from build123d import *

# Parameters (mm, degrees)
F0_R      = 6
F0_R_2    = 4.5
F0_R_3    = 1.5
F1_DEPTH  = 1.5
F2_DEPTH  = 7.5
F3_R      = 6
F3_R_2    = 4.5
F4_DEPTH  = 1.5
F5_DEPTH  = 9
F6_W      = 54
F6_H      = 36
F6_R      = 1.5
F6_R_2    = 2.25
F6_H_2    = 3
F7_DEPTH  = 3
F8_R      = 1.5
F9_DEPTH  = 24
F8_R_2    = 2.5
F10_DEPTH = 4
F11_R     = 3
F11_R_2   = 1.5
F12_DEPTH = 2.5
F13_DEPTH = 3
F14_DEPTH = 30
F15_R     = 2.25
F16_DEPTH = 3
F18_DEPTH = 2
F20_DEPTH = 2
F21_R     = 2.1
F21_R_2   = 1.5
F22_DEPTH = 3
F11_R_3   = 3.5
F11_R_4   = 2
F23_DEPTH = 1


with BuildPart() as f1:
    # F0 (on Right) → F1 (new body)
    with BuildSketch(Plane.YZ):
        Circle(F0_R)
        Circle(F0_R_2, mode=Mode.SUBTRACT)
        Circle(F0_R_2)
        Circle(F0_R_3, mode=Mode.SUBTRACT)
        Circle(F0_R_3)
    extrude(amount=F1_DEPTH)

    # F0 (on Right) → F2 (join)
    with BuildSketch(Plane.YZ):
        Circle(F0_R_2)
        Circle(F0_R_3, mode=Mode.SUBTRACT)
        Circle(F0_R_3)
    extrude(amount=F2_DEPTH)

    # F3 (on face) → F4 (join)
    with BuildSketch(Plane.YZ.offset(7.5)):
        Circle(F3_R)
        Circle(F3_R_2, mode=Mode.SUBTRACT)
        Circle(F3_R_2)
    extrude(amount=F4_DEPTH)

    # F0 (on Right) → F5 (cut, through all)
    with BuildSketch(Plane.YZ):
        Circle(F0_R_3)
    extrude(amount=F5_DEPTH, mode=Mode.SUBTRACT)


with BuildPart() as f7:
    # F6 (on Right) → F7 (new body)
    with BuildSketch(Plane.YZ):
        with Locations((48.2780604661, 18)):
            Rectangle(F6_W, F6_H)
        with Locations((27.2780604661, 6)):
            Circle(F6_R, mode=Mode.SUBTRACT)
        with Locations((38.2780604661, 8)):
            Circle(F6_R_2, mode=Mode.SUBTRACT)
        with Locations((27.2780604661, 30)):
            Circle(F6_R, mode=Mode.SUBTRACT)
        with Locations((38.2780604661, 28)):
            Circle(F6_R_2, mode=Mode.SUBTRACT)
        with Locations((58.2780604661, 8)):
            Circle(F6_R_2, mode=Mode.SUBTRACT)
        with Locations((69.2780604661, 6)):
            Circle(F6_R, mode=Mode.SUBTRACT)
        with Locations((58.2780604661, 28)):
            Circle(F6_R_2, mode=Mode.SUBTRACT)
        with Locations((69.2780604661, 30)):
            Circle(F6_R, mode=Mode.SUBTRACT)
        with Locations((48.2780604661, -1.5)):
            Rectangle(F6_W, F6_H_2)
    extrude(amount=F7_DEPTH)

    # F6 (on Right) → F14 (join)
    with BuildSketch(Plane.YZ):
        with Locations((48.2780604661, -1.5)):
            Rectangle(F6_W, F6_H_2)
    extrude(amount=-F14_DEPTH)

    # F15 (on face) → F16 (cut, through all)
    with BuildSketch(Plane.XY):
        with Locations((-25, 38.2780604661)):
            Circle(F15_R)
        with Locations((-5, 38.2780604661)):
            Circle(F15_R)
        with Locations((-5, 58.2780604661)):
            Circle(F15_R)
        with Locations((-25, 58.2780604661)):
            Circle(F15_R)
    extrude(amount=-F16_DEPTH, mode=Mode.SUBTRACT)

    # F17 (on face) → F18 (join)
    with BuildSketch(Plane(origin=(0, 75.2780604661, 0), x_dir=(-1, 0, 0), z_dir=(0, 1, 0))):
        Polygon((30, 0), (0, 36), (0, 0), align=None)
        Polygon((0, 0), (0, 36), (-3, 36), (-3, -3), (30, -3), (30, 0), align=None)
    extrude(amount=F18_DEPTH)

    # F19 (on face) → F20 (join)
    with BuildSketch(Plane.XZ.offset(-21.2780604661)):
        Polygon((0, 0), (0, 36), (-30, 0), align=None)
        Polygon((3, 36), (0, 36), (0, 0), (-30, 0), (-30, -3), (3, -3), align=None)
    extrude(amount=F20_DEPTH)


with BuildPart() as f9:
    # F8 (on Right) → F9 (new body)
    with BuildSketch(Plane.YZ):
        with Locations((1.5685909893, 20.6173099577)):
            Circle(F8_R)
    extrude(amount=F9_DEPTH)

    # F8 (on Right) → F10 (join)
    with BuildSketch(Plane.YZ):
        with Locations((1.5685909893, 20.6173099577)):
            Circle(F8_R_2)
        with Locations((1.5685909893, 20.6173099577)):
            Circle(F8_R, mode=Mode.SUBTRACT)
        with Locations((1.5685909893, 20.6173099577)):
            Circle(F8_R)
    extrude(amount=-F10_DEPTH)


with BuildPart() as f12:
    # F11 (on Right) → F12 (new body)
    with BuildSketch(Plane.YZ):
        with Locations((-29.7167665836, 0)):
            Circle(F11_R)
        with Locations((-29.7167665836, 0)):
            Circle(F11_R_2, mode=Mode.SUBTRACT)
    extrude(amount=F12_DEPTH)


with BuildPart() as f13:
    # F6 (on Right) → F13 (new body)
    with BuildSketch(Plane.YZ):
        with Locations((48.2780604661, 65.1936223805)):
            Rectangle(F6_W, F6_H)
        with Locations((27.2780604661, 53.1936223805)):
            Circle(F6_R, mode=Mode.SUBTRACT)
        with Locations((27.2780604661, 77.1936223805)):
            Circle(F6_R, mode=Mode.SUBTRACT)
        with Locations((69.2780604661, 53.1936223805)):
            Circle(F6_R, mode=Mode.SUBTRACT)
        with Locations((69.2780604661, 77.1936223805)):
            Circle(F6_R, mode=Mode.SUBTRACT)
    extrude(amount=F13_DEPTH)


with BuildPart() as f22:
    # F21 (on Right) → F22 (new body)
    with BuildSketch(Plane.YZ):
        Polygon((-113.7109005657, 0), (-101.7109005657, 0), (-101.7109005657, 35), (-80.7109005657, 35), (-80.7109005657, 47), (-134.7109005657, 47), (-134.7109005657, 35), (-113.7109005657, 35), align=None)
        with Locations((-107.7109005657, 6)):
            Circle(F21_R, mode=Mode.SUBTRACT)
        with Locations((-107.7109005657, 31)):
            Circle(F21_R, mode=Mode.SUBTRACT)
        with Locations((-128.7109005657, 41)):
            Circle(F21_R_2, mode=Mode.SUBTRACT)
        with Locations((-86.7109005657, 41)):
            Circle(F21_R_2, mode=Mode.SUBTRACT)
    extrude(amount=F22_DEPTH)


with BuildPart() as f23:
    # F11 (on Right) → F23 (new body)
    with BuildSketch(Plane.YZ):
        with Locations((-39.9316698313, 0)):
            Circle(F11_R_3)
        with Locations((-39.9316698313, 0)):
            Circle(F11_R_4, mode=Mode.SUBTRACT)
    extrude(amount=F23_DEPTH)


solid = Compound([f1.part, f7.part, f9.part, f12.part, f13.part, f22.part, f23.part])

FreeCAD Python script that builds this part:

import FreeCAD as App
import Part
import Sketcher

doc = App.newDocument("Part")
body = doc.addObject("PartDesign::Body", "Body")

sketch1 = doc.addObject("Sketcher::SketchObject", "Sketch")
body.addObject(sketch1)
sketch1.AttachmentSupport = (doc.YZ_Plane, [""])
sketch1.MapMode = "FlatFace"
sketch1.addGeometry(Part.Circle(App.Vector(0, 0, 0), App.Vector(0, 0, 1), 6), False)
sketch1.addConstraint([
    Sketcher.Constraint("Coincident", 0, 3, -1, 1),
    Sketcher.Constraint("Diameter", 0, 12.0),
])
pad1 = doc.addObject("PartDesign::Pad", "Pad")
body.addObject(pad1)
pad1.Profile = sketch1
pad1.Length = 1.5

sketch2 = doc.addObject("Sketcher::SketchObject", "Sketch001")
body.addObject(sketch2)
sketch2.AttachmentSupport = (doc.YZ_Plane, [""])
sketch2.MapMode = "FlatFace"
sketch2.addGeometry(Part.Circle(App.Vector(0, 0, 0), App.Vector(0, 0, 1), 4.5), False)
sketch2.addConstraint([
    Sketcher.Constraint("Coincident", 0, 3, -1, 1),
    Sketcher.Constraint("Diameter", 0, 9.0),
])
pad2 = doc.addObject("PartDesign::Pad", "Pad001")
body.addObject(pad2)
pad2.Profile = sketch2
pad2.Length = 7.5

sketch3 = doc.addObject("Sketcher::SketchObject", "Sketch002")
body.addObject(sketch3)
sketch3.AttachmentSupport = (doc.YZ_Plane, [""])
sketch3.MapMode = "FlatFace"
sketch3.AttachmentOffset = App.Placement(App.Vector(0, 0, 7.5), App.Rotation())
sketch3.addGeometry(Part.Circle(App.Vector(0, 0, 0), App.Vector(0, 0, 1), 6), False)
sketch3.addConstraint([
    Sketcher.Constraint("Coincident", 0, 3, -1, 1),
    Sketcher.Constraint("Diameter", 0, 12.0),
])
pad3 = doc.addObject("PartDesign::Pad", "Pad002")
body.addObject(pad3)
pad3.Profile = sketch3
pad3.Length = 1.5

sketch4 = doc.addObject("Sketcher::SketchObject", "Sketch003")
body.addObject(sketch4)
sketch4.AttachmentSupport = (doc.YZ_Plane, [""])
sketch4.MapMode = "FlatFace"
sketch4.addGeometry(Part.Circle(App.Vector(0, 0, 0), App.Vector(0, 0, 1), 1.5), False)
sketch4.addConstraint([
    Sketcher.Constraint("Coincident", 0, 3, -1, 1),
    Sketcher.Constraint("Diameter", 0, 3.0),
])
pocket1 = doc.addObject("PartDesign::Pocket", "Pocket")
body.addObject(pocket1)
pocket1.Profile = sketch4
pocket1.Type = "ThroughAll"
pocket1.Reversed = True
body2 = doc.addObject("PartDesign::Body", "Body001")

sketch5 = doc.addObject("Sketcher::SketchObject", "Sketch004")
body2.addObject(sketch5)
sketch5.AttachmentSupport = (doc.getObject("YZ_Plane001"), [""])
sketch5.MapMode = "FlatFace"
sketch5.addGeometry([
    Part.LineSegment(App.Vector(21.27806, 36, 0), App.Vector(21.27806, -3, 0)),
    Part.LineSegment(App.Vector(21.27806, -3, 0), App.Vector(75.27806, -3, 0)),
    Part.LineSegment(App.Vector(75.27806, -3, 0), App.Vector(75.27806, 36, 0)),
    Part.LineSegment(App.Vector(75.27806, 36, 0), App.Vector(21.27806, 36, 0)),
    Part.Circle(App.Vector(27.27806, 6, 0), App.Vector(0, 0, 1), 1.5),
    Part.Circle(App.Vector(38.27806, 8, 0), App.Vector(0, 0, 1), 2.25),
    Part.Circle(App.Vector(58.27806, 8, 0), App.Vector(0, 0, 1), 2.25),
    Part.Circle(App.Vector(69.27806, 6, 0), App.Vector(0, 0, 1), 1.5),
    Part.Circle(App.Vector(27.27806, 30, 0), App.Vector(0, 0, 1), 1.5),
    Part.Circle(App.Vector(38.27806, 28, 0), App.Vector(0, 0, 1), 2.25),
    Part.Circle(App.Vector(58.27806, 28, 0), App.Vector(0, 0, 1), 2.25),
    Part.Circle(App.Vector(69.27806, 30, 0), App.Vector(0, 0, 1), 1.5),
], False)
sketch5.addConstraint([
    Sketcher.Constraint("Coincident", 0, 2, 1, 1),
    Sketcher.Constraint("Coincident", 1, 2, 2, 1),
    Sketcher.Constraint("Coincident", 2, 2, 3, 1),
    Sketcher.Constraint("Coincident", 3, 2, 0, 1),
    Sketcher.Constraint("Vertical", 0),
    Sketcher.Constraint("Horizontal", 1),
    Sketcher.Constraint("Vertical", 2),
    Sketcher.Constraint("Horizontal", 3),
    Sketcher.Constraint("Equal", 5, 6),
    Sketcher.Constraint("Equal", 4, 7),
    Sketcher.Constraint("Equal", 7, 8),
    Sketcher.Constraint("Equal", 6, 9),
    Sketcher.Constraint("Equal", 9, 10),
    Sketcher.Constraint("Equal", 8, 11),
    Sketcher.Constraint("Horizontal", 5, 3, 6, 3),
    Sketcher.Constraint("Horizontal", 4, 3, 7, 3),
    Sketcher.Constraint("Horizontal", 9, 3, 10, 3),
    Sketcher.Constraint("Horizontal", 8, 3, 11, 3),
    Sketcher.Constraint("Vertical", 4, 3, 8, 3),
    Sketcher.Constraint("Vertical", 5, 3, 9, 3),
    Sketcher.Constraint("Vertical", 6, 3, 10, 3),
    Sketcher.Constraint("Vertical", 7, 3, 11, 3),
    Sketcher.Constraint("Diameter", 4, 3.0),
    Sketcher.Constraint("Diameter", 5, 4.5),
    Sketcher.Constraint("DistanceX", 1, 1, 1, 2, 54.0),
    Sketcher.Constraint("DistanceY", 0, 2, 0, 1, 39.0),
    Sketcher.Constraint("DistanceY", -1, 1, 4, 3, 6.0),
    Sketcher.Constraint("DistanceY", -1, 1, 5, 3, 8.0),
    Sketcher.Constraint("DistanceY", -1, 1, 8, 3, 30.0),
    Sketcher.Constraint("DistanceY", -1, 1, 9, 3, 28.0),
    Sketcher.Constraint("DistanceY", 0, 2, -1, 1, 3.0),
    Sketcher.Constraint("DistanceX", 4, 3, 5, 3, 11.0),
    Sketcher.Constraint("DistanceX", 5, 3, 6, 3, 20.0),
    Sketcher.Constraint("DistanceX", 6, 3, 7, 3, 11.0),
    Sketcher.Constraint("DistanceX", 0, 2, 4, 3, 6.0),
    Sketcher.Constraint("DistanceX", -1, 1, 4, 3, 27.27806),
])
pad4 = doc.addObject("PartDesign::Pad", "Pad003")
body2.addObject(pad4)
pad4.Profile = sketch5
pad4.Length = 3

sketch6 = doc.addObject("Sketcher::SketchObject", "Sketch005")
body2.addObject(sketch6)
sketch6.AttachmentSupport = (doc.getObject("YZ_Plane001"), [""])
sketch6.MapMode = "FlatFace"
sketch6.addGeometry([
    Part.LineSegment(App.Vector(21.27806, 0, 0), App.Vector(21.27806, -3, 0)),
    Part.LineSegment(App.Vector(21.27806, -3, 0), App.Vector(75.27806, -3, 0)),
    Part.LineSegment(App.Vector(75.27806, -3, 0), App.Vector(75.27806, 0, 0)),
    Part.LineSegment(App.Vector(75.27806, 0, 0), App.Vector(21.27806, 0, 0)),
], False)
sketch6.addConstraint([
    Sketcher.Constraint("Coincident", 0, 2, 1, 1),
    Sketcher.Constraint("Coincident", 1, 2, 2, 1),
    Sketcher.Constraint("Coincident", 2, 2, 3, 1),
    Sketcher.Constraint("Coincident", 3, 2, 0, 1),
    Sketcher.Constraint("Vertical", 0),
    Sketcher.Constraint("Horizontal", 1),
    Sketcher.Constraint("Vertical", 2),
    Sketcher.Constraint("Horizontal", 3),
    Sketcher.Constraint("PointOnObject", 2, 2, -1),
    Sketcher.Constraint("DistanceX", 1, 1, 1, 2, 54.0),
    Sketcher.Constraint("DistanceY", 0, 2, 0, 1, 3.0),
    Sketcher.Constraint("DistanceX", -1, 1, 0, 2, 21.27806),
])
pad5 = doc.addObject("PartDesign::Pad", "Pad004")
body2.addObject(pad5)
pad5.Profile = sketch6
pad5.Length = 30
pad5.Reversed = True

sketch7 = doc.addObject("Sketcher::SketchObject", "Sketch006")
body2.addObject(sketch7)
sketch7.AttachmentSupport = (doc.getObject("XY_Plane001"), [""])
sketch7.MapMode = "FlatFace"
sketch7.addGeometry([
    Part.Circle(App.Vector(-25, 38.27806, 0), App.Vector(0, 0, 1), 2.25),
    Part.Circle(App.Vector(-5, 38.27806, 0), App.Vector(0, 0, 1), 2.25),
    Part.Circle(App.Vector(-5, 58.27806, 0), App.Vector(0, 0, 1), 2.25),
    Part.Circle(App.Vector(-25, 58.27806, 0), App.Vector(0, 0, 1), 2.25),
], False)
sketch7.addConstraint([
    Sketcher.Constraint("Equal", 0, 1),
    Sketcher.Constraint("Equal", 1, 2),
    Sketcher.Constraint("Equal", 2, 3),
    Sketcher.Constraint("Horizontal", 0, 3, 1, 3),
    Sketcher.Constraint("Horizontal", 2, 3, 3, 3),
    Sketcher.Constraint("Vertical", 1, 3, 2, 3),
    Sketcher.Constraint("Vertical", 0, 3, 3, 3),
    Sketcher.Constraint("Diameter", 0, 4.5),
    Sketcher.Constraint("DistanceX", 0, 3, -1, 1, 25.0),
    Sketcher.Constraint("DistanceX", 1, 3, -1, 1, 5.0),
    Sketcher.Constraint("DistanceY", 1, 3, 2, 3, 20.0),
    Sketcher.Constraint("DistanceY", -1, 1, 0, 3, 38.27806),
])
pocket2 = doc.addObject("PartDesign::Pocket", "Pocket001")
body2.addObject(pocket2)
pocket2.Profile = sketch7
pocket2.Type = "ThroughAll"

sketch8 = doc.addObject("Sketcher::SketchObject", "Sketch007")
body2.addObject(sketch8)
sketch8.AttachmentSupport = (doc.getObject("XZ_Plane001"), [""])
sketch8.MapMode = "FlatFace"
sketch8.AttachmentOffset = App.Placement(App.Vector(0, 0, -75.27806), App.Rotation())
sketch8.addGeometry([
    Part.LineSegment(App.Vector(-30, 0, 0), App.Vector(0, 36, 0)),
    Part.LineSegment(App.Vector(0, 36, 0), App.Vector(3, 36, 0)),
    Part.LineSegment(App.Vector(3, 36, 0), App.Vector(3, -3, 0)),
    Part.LineSegment(App.Vector(3, -3, 0), App.Vector(-30, -3, 0)),
    Part.LineSegment(App.Vector(-30, -3, 0), App.Vector(-30, 0, 0)),
], False)
sketch8.addConstraint([
    Sketcher.Constraint("Coincident", 0, 2, 1, 1),
    Sketcher.Constraint("Coincident", 1, 2, 2, 1),
    Sketcher.Constraint("Coincident", 2, 2, 3, 1),
    Sketcher.Constraint("Coincident", 3, 2, 4, 1),
    Sketcher.Constraint("Coincident", 4, 2, 0, 1),
    Sketcher.Constraint("Horizontal", 1),
    Sketcher.Constraint("Vertical", 2),
    Sketcher.Constraint("Horizontal", 3),
    Sketcher.Constraint("Vertical", 4),
    Sketcher.Constraint("PointOnObject", 0, 2, -2),
    Sketcher.Constraint("PointOnObject", 4, 2, -1),
    Sketcher.Constraint("Equal", 1, 4),
    Sketcher.Constraint("DistanceX", 1, 1, 1, 2, 3.0),
    Sketcher.Constraint("DistanceX", 3, 2, 3, 1, 33.0),
    Sketcher.Constraint("DistanceY", 2, 2, 2, 1, 39.0),
])
pad6 = doc.addObject("PartDesign::Pad", "Pad005")
body2.addObject(pad6)
pad6.Profile = sketch8
pad6.Length = 2
pad6.Reversed = True

sketch9 = doc.addObject("Sketcher::SketchObject", "Sketch008")
body2.addObject(sketch9)
sketch9.AttachmentSupport = (doc.getObject("XZ_Plane001"), [""])
sketch9.MapMode = "FlatFace"
sketch9.AttachmentOffset = App.Placement(App.Vector(0, 0, -21.27806), App.Rotation())
sketch9.addGeometry([
    Part.LineSegment(App.Vector(0, 36, 0), App.Vector(-30, 0, 0)),
    Part.LineSegment(App.Vector(-30, 0, 0), App.Vector(-30, -3, 0)),
    Part.LineSegment(App.Vector(-30, -3, 0), App.Vector(3, -3, 0)),
    Part.LineSegment(App.Vector(3, -3, 0), App.Vector(3, 36, 0)),
    Part.LineSegment(App.Vector(3, 36, 0), App.Vector(0, 36, 0)),
], False)
sketch9.addConstraint([
    Sketcher.Constraint("Coincident", 0, 2, 1, 1),
    Sketcher.Constraint("Coincident", 1, 2, 2, 1),
    Sketcher.Constraint("Coincident", 2, 2, 3, 1),
    Sketcher.Constraint("Coincident", 3, 2, 4, 1),
    Sketcher.Constraint("Coincident", 4, 2, 0, 1),
    Sketcher.Constraint("Vertical", 1),
    Sketcher.Constraint("Horizontal", 2),
    Sketcher.Constraint("Vertical", 3),
    Sketcher.Constraint("Horizontal", 4),
    Sketcher.Constraint("PointOnObject", 0, 2, -1),
    Sketcher.Constraint("PointOnObject", 4, 2, -2),
    Sketcher.Constraint("Equal", 4, 1),
    Sketcher.Constraint("DistanceX", 2, 1, 2, 2, 33.0),
    Sketcher.Constraint("DistanceX", 4, 2, 4, 1, 3.0),
    Sketcher.Constraint("DistanceY", 3, 1, 3, 2, 39.0),
])
pad7 = doc.addObject("PartDesign::Pad", "Pad006")
body2.addObject(pad7)
pad7.Profile = sketch9
pad7.Length = 2
body3 = doc.addObject("PartDesign::Body", "Body002")

sketch10 = doc.addObject("Sketcher::SketchObject", "Sketch009")
body3.addObject(sketch10)
sketch10.AttachmentSupport = (doc.getObject("YZ_Plane002"), [""])
sketch10.MapMode = "FlatFace"
sketch10.addGeometry(Part.Circle(App.Vector(1.568591, 20.61731, 0), App.Vector(0, 0, 1), 1.5), False)
sketch10.addConstraint([
    Sketcher.Constraint("Diameter", 0, 3.0),
    Sketcher.Constraint("DistanceX", -1, 1, 0, 3, 1.568591),
    Sketcher.Constraint("DistanceY", -1, 1, 0, 3, 20.61731),
])
pad8 = doc.addObject("PartDesign::Pad", "Pad007")
body3.addObject(pad8)
pad8.Profile = sketch10
pad8.Length = 24

sketch11 = doc.addObject("Sketcher::SketchObject", "Sketch010")
body3.addObject(sketch11)
sketch11.AttachmentSupport = (doc.getObject("YZ_Plane002"), [""])
sketch11.MapMode = "FlatFace"
sketch11.addGeometry(Part.Circle(App.Vector(1.568591, 20.61731, 0), App.Vector(0, 0, 1), 2.5), False)
sketch11.addConstraint([
    Sketcher.Constraint("Diameter", 0, 5.0),
    Sketcher.Constraint("DistanceX", -1, 1, 0, 3, 1.568591),
    Sketcher.Constraint("DistanceY", -1, 1, 0, 3, 20.61731),
])
pad9 = doc.addObject("PartDesign::Pad", "Pad008")
body3.addObject(pad9)
pad9.Profile = sketch11
pad9.Length = 4
pad9.Reversed = True
body4 = doc.addObject("PartDesign::Body", "Body003")

sketch12 = doc.addObject("Sketcher::SketchObject", "Sketch011")
body4.addObject(sketch12)
sketch12.AttachmentSupport = (doc.getObject("YZ_Plane003"), [""])
sketch12.MapMode = "FlatFace"
sketch12.addGeometry([
    Part.Circle(App.Vector(-29.716767, 0, 0), App.Vector(0, 0, 1), 3),
    Part.Circle(App.Vector(-29.716767, 0, 0), App.Vector(0, 0, 1), 1.5),
], False)
sketch12.addConstraint([
    Sketcher.Constraint("Coincident", 1, 3, 0, 3),
    Sketcher.Constraint("PointOnObject", 0, 3, -1),
    Sketcher.Constraint("Diameter", 0, 6.0),
    Sketcher.Constraint("Diameter", 1, 3.0),
    Sketcher.Constraint("DistanceX", 0, 3, -1, 1, 29.716767),
])
pad10 = doc.addObject("PartDesign::Pad", "Pad009")
body4.addObject(pad10)
pad10.Profile = sketch12
pad10.Length = 2.5
body5 = doc.addObject("PartDesign::Body", "Body004")

sketch13 = doc.addObject("Sketcher::SketchObject", "Sketch012")
body5.addObject(sketch13)
sketch13.AttachmentSupport = (doc.getObject("YZ_Plane004"), [""])
sketch13.MapMode = "FlatFace"
sketch13.addGeometry([
    Part.LineSegment(App.Vector(21.27806, 83.193622, 0), App.Vector(21.27806, 47.193622, 0)),
    Part.LineSegment(App.Vector(21.27806, 47.193622, 0), App.Vector(75.27806, 47.193622, 0)),
    Part.LineSegment(App.Vector(75.27806, 47.193622, 0), App.Vector(75.27806, 83.193622, 0)),
    Part.LineSegment(App.Vector(75.27806, 83.193622, 0), App.Vector(21.27806, 83.193622, 0)),
    Part.Circle(App.Vector(27.27806, 53.193622, 0), App.Vector(0, 0, 1), 1.5),
    Part.Circle(App.Vector(69.27806, 53.193622, 0), App.Vector(0, 0, 1), 1.5),
    Part.Circle(App.Vector(27.27806, 77.193622, 0), App.Vector(0, 0, 1), 1.5),
    Part.Circle(App.Vector(69.27806, 77.193622, 0), App.Vector(0, 0, 1), 1.5),
], False)
sketch13.addConstraint([
    Sketcher.Constraint("Coincident", 0, 2, 1, 1),
    Sketcher.Constraint("Coincident", 1, 2, 2, 1),
    Sketcher.Constraint("Coincident", 2, 2, 3, 1),
    Sketcher.Constraint("Coincident", 3, 2, 0, 1),
    Sketcher.Constraint("Vertical", 0),
    Sketcher.Constraint("Horizontal", 1),
    Sketcher.Constraint("Vertical", 2),
    Sketcher.Constraint("Horizontal", 3),
    Sketcher.Constraint("Equal", 4, 5),
    Sketcher.Constraint("Equal", 5, 6),
    Sketcher.Constraint("Equal", 6, 7),
    Sketcher.Constraint("Horizontal", 4, 3, 5, 3),
    Sketcher.Constraint("Horizontal", 6, 3, 7, 3),
    Sketcher.Constraint("Vertical", 4, 3, 6, 3),
    Sketcher.Constraint("Vertical", 5, 3, 7, 3),
    Sketcher.Constraint("Diameter", 4, 3.0),
    Sketcher.Constraint("DistanceX", 1, 1, 1, 2, 54.0),
    Sketcher.Constraint("DistanceY", 0, 2, 0, 1, 36.0),
    Sketcher.Constraint("DistanceX", 4, 3, 5, 3, 42.0),
    Sketcher.Constraint("DistanceY", 4, 3, 6, 3, 24.0),
    Sketcher.Constraint("DistanceX", 0, 2, 4, 3, 6.0),
    Sketcher.Constraint("DistanceY", 0, 2, 4, 3, 6.0),
    Sketcher.Constraint("DistanceX", -1, 1, 4, 3, 27.27806),
    Sketcher.Constraint("DistanceY", -1, 1, 4, 3, 53.193622),
])
pad11 = doc.addObject("PartDesign::Pad", "Pad010")
body5.addObject(pad11)
pad11.Profile = sketch13
pad11.Length = 3
body6 = doc.addObject("PartDesign::Body", "Body005")

sketch14 = doc.addObject("Sketcher::SketchObject", "Sketch013")
body6.addObject(sketch14)
sketch14.AttachmentSupport = (doc.getObject("YZ_Plane005"), [""])
sketch14.MapMode = "FlatFace"
sketch14.addGeometry([
    Part.LineSegment(App.Vector(-113.710901, 0, 0), App.Vector(-101.710901, 0, 0)),
    Part.LineSegment(App.Vector(-101.710901, 0, 0), App.Vector(-101.710901, 35, 0)),
    Part.LineSegment(App.Vector(-101.710901, 35, 0), App.Vector(-80.710901, 35, 0)),
    Part.LineSegment(App.Vector(-80.710901, 35, 0), App.Vector(-80.710901, 47, 0)),
    Part.LineSegment(App.Vector(-80.710901, 47, 0), App.Vector(-134.710901, 47, 0)),
    Part.LineSegment(App.Vector(-134.710901, 47, 0), App.Vector(-134.710901, 35, 0)),
    Part.LineSegment(App.Vector(-134.710901, 35, 0), App.Vector(-113.710901, 35, 0)),
    Part.LineSegment(App.Vector(-113.710901, 35, 0), App.Vector(-113.710901, 0, 0)),
    Part.Circle(App.Vector(-107.710901, 6, 0), App.Vector(0, 0, 1), 2.1),
    Part.Circle(App.Vector(-128.710901, 41, 0), App.Vector(0, 0, 1), 1.5),
    Part.Circle(App.Vector(-107.710901, 31, 0), App.Vector(0, 0, 1), 2.1),
    Part.Circle(App.Vector(-86.710901, 41, 0), App.Vector(0, 0, 1), 1.5),
], False)
sketch14.addConstraint([
    Sketcher.Constraint("Coincident", 0, 2, 1, 1),
    Sketcher.Constraint("Coincident", 1, 2, 2, 1),
    Sketcher.Constraint("Coincident", 2, 2, 3, 1),
    Sketcher.Constraint("Coincident", 3, 2, 4, 1),
    Sketcher.Constraint("Coincident", 4, 2, 5, 1),
    Sketcher.Constraint("Coincident", 5, 2, 6, 1),
    Sketcher.Constraint("Coincident", 6, 2, 7, 1),
    Sketcher.Constraint("Coincident", 7, 2, 0, 1),
    Sketcher.Constraint("Horizontal", 0),
    Sketcher.Constraint("Vertical", 1),
    Sketcher.Constraint("Horizontal", 2),
    Sketcher.Constraint("Vertical", 3),
    Sketcher.Constraint("Horizontal", 4),
    Sketcher.Constraint("Vertical", 5),
    Sketcher.Constraint("Horizontal", 6),
    Sketcher.Constraint("Vertical", 7),
    Sketcher.Constraint("Equal", 8, 10),
    Sketcher.Constraint("Equal", 9, 11),
    Sketcher.Constraint("PointOnObject", 0, 2, -1),
    Sketcher.Constraint("Horizontal", 9, 3, 11, 3),
    Sketcher.Constraint("Horizontal", 2, 2, 5, 2),
    Sketcher.Constraint("Vertical", 8, 3, 10, 3),
    Sketcher.Constraint("Equal", 2, 6),
    Sketcher.Constraint("Equal", 0, 3),
    Sketcher.Constraint("Diameter", 9, 3.0),
    Sketcher.Constraint("Diameter", 8, 4.2),
    Sketcher.Constraint("DistanceX", 0, 1, 0, 2, 12.0),
    Sketcher.Constraint("DistanceX", 2, 1, 2, 2, 21.0),
    Sketcher.Constraint("DistanceY", 1, 1, 1, 2, 35.0),
    Sketcher.Constraint("DistanceY", -1, 1, 8, 3, 6.0),
    Sketcher.Constraint("DistanceY", -1, 1, 9, 3, 41.0),
    Sketcher.Constraint("DistanceY", -1, 1, 10, 3, 31.0),
    Sketcher.Constraint("DistanceX", 9, 3, 8, 3, 21.0),
    Sketcher.Constraint("DistanceX", 10, 3, 11, 3, 21.0),
    Sketcher.Constraint("DistanceX", 8, 3, 0, 2, 6.0),
    Sketcher.Constraint("DistanceX", 8, 3, -1, 1, 107.710901),
])
pad12 = doc.addObject("PartDesign::Pad", "Pad011")
body6.addObject(pad12)
pad12.Profile = sketch14
pad12.Length = 3
body7 = doc.addObject("PartDesign::Body", "Body006")

sketch15 = doc.addObject("Sketcher::SketchObject", "Sketch014")
body7.addObject(sketch15)
sketch15.AttachmentSupport = (doc.getObject("YZ_Plane006"), [""])
sketch15.MapMode = "FlatFace"
sketch15.addGeometry([
    Part.Circle(App.Vector(-39.93167, 0, 0), App.Vector(0, 0, 1), 3.5),
    Part.Circle(App.Vector(-39.93167, 0, 0), App.Vector(0, 0, 1), 2),
], False)
sketch15.addConstraint([
    Sketcher.Constraint("Coincident", 1, 3, 0, 3),
    Sketcher.Constraint("PointOnObject", 0, 3, -1),
    Sketcher.Constraint("Diameter", 0, 7.0),
    Sketcher.Constraint("Diameter", 1, 4.0),
    Sketcher.Constraint("DistanceX", 0, 3, -1, 1, 39.93167),
])
pad13 = doc.addObject("PartDesign::Pad", "Pad012")
body7.addObject(pad13)
pad13.Profile = sketch15
pad13.Length = 1

doc.recompute()
